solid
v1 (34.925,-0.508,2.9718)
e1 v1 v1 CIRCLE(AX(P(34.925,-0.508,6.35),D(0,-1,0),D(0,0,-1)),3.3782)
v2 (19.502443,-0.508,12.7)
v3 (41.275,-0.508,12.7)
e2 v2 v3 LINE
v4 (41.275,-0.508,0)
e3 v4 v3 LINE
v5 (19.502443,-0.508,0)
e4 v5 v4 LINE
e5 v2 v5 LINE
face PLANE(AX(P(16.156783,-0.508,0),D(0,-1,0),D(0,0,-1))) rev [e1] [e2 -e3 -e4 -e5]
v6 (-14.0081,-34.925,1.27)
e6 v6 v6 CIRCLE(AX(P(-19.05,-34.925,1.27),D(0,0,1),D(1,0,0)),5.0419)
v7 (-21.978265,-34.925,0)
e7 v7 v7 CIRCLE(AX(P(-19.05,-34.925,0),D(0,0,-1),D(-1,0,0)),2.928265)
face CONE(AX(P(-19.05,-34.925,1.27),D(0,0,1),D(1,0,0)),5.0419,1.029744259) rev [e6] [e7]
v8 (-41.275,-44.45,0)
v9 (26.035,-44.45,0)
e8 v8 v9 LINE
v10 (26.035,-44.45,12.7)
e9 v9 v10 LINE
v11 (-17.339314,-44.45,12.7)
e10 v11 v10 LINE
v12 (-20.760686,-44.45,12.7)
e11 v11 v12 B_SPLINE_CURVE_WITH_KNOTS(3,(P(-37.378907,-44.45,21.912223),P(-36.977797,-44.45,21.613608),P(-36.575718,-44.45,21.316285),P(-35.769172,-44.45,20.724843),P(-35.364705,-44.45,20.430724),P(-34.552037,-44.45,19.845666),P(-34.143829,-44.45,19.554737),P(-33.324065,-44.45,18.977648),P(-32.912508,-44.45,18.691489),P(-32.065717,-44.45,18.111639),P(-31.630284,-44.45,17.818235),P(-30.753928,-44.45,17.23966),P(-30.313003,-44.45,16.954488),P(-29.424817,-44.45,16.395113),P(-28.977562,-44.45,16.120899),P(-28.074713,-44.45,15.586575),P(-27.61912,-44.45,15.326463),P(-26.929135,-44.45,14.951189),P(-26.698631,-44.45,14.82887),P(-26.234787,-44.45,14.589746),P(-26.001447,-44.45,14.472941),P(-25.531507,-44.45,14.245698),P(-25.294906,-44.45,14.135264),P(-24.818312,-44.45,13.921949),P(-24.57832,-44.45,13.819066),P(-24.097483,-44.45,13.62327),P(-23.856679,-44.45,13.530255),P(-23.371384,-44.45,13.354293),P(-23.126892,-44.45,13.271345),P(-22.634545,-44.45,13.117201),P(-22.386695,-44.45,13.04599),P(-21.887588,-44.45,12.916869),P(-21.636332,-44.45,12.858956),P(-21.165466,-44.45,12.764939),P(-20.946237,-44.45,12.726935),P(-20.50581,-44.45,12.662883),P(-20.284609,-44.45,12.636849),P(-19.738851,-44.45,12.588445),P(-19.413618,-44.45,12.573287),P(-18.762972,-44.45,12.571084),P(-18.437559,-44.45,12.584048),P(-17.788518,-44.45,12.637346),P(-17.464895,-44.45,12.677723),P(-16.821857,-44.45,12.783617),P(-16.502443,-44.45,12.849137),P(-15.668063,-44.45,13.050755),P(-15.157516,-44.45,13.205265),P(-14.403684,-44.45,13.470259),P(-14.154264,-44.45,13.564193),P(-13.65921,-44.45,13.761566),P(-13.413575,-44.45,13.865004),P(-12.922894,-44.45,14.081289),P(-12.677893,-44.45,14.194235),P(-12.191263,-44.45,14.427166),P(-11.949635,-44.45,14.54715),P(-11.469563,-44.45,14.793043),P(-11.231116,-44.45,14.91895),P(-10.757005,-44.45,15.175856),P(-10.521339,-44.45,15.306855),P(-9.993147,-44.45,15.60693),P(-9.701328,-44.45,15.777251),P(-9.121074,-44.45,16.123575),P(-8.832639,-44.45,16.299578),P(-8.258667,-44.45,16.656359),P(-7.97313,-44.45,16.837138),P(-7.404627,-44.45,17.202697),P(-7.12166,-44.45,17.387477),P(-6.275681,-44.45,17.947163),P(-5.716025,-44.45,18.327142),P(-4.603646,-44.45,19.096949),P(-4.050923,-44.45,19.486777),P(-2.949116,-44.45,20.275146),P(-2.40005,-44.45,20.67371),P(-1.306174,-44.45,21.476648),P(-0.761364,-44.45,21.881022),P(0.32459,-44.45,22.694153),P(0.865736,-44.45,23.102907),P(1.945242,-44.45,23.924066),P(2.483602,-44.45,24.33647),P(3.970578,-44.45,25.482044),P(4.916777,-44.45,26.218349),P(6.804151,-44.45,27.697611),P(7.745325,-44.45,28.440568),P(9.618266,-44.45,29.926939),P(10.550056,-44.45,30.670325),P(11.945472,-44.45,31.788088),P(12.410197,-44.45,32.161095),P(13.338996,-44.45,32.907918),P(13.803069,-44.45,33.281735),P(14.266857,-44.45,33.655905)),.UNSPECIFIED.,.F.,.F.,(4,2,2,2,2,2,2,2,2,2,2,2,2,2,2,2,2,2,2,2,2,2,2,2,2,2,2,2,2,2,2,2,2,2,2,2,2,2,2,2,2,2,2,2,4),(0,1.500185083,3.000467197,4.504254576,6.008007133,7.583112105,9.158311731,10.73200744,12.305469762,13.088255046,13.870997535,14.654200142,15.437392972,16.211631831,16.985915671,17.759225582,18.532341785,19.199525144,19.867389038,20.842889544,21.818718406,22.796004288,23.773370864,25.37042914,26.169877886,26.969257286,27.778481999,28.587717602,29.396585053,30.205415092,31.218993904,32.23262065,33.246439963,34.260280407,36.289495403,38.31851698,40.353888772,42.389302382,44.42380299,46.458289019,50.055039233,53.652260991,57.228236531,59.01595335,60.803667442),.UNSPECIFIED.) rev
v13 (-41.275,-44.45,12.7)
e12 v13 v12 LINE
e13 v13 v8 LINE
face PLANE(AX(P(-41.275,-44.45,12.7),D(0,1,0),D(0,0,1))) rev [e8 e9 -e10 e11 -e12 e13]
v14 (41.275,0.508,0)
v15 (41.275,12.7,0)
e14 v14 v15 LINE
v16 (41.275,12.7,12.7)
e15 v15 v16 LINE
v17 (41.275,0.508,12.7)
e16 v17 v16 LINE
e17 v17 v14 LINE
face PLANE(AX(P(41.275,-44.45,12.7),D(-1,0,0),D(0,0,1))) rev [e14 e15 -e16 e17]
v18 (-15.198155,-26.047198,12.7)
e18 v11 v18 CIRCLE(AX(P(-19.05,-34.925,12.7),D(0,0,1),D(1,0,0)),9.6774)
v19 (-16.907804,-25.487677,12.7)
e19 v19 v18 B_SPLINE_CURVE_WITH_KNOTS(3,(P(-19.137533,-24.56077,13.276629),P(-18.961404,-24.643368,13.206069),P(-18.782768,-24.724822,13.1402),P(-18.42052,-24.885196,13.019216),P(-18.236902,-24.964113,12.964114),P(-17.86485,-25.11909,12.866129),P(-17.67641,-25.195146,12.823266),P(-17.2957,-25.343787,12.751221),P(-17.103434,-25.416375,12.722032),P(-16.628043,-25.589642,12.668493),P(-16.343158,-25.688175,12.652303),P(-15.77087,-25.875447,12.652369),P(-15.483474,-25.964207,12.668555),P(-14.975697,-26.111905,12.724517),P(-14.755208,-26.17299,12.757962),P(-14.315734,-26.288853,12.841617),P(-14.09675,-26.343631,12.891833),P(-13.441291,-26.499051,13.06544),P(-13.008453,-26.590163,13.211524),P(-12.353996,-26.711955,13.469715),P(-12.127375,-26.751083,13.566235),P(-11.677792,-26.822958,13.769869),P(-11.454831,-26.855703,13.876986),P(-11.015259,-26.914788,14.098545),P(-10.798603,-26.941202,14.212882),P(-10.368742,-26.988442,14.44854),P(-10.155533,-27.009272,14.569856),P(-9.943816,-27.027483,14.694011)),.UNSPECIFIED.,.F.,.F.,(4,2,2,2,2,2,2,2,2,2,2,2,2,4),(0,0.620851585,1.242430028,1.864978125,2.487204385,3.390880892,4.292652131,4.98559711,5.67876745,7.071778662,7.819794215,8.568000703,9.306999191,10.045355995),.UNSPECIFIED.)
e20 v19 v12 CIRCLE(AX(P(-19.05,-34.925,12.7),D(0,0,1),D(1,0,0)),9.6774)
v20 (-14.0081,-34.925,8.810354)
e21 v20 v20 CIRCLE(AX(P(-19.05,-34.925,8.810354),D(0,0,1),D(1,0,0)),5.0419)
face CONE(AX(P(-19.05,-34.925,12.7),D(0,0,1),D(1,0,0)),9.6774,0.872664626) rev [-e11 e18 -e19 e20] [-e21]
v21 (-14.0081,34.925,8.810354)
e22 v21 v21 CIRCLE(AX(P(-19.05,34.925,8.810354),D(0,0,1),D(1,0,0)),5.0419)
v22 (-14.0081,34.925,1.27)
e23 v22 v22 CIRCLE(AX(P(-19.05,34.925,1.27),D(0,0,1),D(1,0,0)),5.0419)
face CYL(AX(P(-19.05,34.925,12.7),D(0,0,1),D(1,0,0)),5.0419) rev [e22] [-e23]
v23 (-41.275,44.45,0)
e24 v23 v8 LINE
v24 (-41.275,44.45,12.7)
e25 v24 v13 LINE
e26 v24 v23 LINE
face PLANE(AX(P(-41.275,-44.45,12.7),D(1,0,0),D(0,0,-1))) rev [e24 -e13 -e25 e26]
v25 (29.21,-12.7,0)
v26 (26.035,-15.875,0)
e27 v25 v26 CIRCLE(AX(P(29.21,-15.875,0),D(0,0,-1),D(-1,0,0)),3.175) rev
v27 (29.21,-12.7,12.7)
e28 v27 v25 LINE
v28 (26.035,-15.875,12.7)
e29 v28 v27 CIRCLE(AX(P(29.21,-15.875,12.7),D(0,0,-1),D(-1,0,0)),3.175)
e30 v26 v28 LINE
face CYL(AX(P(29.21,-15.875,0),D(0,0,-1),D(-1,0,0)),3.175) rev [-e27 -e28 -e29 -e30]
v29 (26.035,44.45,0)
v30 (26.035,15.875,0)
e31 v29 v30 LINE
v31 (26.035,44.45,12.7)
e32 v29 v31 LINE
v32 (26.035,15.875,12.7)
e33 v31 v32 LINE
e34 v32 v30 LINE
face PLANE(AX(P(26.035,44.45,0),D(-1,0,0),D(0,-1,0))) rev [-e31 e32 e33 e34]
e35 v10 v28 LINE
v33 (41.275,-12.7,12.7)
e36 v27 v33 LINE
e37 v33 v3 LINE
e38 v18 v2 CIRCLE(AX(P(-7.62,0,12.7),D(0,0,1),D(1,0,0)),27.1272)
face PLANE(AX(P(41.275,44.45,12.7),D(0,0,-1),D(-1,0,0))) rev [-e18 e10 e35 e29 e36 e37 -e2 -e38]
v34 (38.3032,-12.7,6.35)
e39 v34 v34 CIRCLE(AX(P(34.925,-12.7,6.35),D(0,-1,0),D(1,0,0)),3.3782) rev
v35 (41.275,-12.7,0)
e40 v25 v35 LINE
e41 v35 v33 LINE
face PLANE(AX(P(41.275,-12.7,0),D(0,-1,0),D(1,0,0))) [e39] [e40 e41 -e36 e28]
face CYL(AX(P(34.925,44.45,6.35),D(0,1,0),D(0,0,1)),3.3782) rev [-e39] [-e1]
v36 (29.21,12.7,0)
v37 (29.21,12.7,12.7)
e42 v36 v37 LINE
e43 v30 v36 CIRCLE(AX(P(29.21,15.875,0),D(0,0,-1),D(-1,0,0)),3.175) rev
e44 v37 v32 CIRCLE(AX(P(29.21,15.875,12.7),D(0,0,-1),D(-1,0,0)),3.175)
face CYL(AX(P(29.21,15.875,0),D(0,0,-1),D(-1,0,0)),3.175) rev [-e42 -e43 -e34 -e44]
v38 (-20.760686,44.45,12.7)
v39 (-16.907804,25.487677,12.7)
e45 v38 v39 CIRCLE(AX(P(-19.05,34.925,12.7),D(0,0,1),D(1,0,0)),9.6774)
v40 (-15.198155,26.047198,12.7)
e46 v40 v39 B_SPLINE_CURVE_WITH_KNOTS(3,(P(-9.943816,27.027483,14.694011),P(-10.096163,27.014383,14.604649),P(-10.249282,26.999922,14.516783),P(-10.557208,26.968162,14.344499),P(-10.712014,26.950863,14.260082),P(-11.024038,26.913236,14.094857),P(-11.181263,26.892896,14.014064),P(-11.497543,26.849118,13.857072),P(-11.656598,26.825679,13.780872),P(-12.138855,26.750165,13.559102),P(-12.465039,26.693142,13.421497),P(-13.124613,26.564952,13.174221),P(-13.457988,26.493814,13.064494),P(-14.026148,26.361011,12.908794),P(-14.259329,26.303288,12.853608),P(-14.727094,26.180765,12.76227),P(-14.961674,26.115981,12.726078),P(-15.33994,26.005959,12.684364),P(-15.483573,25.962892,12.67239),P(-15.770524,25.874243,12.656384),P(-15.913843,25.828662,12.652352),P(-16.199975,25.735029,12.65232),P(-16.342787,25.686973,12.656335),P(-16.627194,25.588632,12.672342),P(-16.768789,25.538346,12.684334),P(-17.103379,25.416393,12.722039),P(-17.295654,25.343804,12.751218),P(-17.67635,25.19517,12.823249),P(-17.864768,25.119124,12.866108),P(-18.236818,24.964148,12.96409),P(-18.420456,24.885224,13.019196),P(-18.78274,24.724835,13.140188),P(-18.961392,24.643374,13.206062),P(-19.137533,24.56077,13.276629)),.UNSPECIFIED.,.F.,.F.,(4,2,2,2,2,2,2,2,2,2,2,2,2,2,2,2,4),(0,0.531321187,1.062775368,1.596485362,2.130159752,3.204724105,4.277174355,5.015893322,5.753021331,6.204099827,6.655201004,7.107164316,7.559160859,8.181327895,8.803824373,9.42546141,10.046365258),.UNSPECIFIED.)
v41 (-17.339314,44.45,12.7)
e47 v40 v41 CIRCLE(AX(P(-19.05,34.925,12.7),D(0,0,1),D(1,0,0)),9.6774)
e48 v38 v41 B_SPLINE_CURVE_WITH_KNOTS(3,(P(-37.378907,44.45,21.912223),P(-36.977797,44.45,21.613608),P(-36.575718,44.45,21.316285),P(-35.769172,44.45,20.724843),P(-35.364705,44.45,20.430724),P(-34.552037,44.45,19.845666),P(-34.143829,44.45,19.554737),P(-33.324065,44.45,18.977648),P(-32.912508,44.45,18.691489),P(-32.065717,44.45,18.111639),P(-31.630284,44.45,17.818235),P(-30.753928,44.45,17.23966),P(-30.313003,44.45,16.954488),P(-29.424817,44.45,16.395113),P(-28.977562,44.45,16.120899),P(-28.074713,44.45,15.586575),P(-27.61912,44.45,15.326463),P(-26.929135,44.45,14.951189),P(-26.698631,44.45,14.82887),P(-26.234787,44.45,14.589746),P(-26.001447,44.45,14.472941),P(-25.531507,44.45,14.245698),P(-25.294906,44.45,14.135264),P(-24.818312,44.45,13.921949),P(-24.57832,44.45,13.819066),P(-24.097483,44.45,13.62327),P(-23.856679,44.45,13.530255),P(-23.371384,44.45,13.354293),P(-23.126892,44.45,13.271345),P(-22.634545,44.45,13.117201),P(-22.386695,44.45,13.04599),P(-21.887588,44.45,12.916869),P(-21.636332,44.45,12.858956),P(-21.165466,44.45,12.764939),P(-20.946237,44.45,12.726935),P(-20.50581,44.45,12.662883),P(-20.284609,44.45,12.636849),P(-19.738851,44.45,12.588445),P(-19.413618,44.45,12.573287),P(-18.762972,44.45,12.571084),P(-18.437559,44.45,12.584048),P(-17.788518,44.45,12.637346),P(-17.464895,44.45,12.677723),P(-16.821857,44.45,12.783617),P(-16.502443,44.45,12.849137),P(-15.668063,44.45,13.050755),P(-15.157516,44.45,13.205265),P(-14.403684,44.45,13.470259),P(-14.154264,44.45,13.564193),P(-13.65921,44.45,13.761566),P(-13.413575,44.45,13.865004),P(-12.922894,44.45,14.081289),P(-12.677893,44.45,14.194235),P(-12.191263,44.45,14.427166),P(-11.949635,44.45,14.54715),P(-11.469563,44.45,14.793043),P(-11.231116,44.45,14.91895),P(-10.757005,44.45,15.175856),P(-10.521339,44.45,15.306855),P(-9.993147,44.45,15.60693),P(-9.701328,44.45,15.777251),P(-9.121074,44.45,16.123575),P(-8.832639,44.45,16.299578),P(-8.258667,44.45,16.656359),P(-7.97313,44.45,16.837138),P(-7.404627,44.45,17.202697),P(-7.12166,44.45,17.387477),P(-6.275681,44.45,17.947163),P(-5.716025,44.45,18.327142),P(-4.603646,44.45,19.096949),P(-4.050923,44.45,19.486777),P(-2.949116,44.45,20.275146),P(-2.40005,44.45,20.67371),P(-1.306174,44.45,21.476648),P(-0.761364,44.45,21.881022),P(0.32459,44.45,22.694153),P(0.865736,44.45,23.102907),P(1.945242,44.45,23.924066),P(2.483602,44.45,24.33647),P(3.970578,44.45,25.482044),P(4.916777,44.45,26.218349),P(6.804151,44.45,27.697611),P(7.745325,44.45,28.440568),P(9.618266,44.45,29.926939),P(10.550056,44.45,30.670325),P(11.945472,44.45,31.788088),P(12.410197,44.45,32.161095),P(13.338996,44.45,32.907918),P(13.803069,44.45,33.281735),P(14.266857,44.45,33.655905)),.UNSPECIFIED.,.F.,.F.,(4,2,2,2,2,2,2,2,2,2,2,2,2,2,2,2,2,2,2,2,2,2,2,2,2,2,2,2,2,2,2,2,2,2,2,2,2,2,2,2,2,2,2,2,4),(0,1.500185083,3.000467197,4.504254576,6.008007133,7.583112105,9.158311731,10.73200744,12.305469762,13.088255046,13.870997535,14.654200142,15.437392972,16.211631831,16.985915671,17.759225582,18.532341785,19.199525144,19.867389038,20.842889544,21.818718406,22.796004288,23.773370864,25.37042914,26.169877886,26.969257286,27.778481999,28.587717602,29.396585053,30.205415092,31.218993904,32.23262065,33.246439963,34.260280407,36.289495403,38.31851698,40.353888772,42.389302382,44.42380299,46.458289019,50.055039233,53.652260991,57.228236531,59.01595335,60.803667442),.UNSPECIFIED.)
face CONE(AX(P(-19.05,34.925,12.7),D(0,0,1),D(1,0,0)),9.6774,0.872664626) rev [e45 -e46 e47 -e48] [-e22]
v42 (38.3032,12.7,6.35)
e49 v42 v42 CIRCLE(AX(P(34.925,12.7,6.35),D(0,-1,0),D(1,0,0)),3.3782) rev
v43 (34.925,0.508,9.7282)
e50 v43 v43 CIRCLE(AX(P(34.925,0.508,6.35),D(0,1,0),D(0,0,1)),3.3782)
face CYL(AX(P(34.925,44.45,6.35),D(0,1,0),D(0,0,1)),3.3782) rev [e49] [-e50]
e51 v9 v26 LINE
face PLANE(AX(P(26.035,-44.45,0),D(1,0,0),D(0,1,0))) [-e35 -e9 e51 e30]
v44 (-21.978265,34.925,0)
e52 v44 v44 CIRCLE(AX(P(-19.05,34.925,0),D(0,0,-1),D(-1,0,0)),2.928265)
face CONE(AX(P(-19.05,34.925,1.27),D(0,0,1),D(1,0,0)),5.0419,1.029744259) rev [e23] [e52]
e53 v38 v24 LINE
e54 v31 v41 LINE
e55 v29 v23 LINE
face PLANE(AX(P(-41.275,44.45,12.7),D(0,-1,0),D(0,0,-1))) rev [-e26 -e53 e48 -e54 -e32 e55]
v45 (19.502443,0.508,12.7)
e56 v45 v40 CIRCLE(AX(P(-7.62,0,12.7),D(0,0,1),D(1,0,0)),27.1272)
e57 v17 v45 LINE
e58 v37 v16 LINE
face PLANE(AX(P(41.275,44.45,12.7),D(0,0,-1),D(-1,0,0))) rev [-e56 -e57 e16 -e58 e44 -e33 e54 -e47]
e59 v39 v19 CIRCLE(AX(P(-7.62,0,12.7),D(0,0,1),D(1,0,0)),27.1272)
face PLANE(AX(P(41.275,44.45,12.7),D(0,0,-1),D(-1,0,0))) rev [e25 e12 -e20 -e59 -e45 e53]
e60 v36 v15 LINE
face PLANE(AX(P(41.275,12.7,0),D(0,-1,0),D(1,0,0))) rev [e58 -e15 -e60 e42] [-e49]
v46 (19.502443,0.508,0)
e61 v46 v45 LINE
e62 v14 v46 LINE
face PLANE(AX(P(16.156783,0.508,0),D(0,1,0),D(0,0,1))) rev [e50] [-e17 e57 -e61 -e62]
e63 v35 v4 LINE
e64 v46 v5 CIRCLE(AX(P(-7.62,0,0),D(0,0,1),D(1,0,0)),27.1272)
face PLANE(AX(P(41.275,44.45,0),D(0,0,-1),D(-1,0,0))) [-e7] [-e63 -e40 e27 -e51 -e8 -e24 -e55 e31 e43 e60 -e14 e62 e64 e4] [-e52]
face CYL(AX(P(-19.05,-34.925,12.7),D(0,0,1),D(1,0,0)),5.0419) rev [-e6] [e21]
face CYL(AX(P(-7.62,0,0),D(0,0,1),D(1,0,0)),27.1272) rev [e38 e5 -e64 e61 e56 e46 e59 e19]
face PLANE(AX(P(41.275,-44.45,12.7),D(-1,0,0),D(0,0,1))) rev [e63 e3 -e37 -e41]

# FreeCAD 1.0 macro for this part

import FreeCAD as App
import Part
import Sketcher

V = App.Vector
Q = App.Units.Quantity


def edges_at(feature, points):
    """Names of the edges that pass closest to the given points."""
    edges = feature.Shape.Edges
    near = lambda p: min(range(len(edges)), key=lambda i: edges[i].distToShape(Part.Vertex(*p))[0])
    return sorted({f"Edge{near(p) + 1}" for p in points})


def add_polygon(sketch, points):
    """Adds a closed chain of lines whose ends are joined by coincident constraints."""
    first, n = sketch.GeometryCount, len(points)
    for a, b in zip(points, points[1:] + points[:1]):
        sketch.addGeometry(Part.LineSegment(App.Vector(*a, 0), App.Vector(*b, 0)), False)
    for i in range(n):
        sketch.addConstraint(Sketcher.Constraint("Coincident", first + i, 2, first + (i + 1) % n, 1))

doc = App.newDocument("Part")
body = doc.addObject("PartDesign::Body", "Body")

# Sketch on XY plane
sketch1 = body.newObject("Sketcher::SketchObject", "Sketch")
sketch1.AttachmentSupport = (doc.getObject("XY_Plane"), [""])
sketch1.MapMode = "FlatFace"
add_polygon(sketch1, [(-41, 44), (-41, -44), (41, -44), (41, 44)])  # lines 0-3
sketch1.addConstraint([
    Sketcher.Constraint("Vertical", 0),
    Sketcher.Constraint("Horizontal", 1),
    Sketcher.Constraint("Vertical", 2),
    Sketcher.Constraint("Horizontal", 3),
    Sketcher.Constraint("Symmetric", 0, 2, 2, 2, -1, 1),
    Sketcher.Constraint("DistanceY", 0, 2, 0, 1, Q("3.5 in")),
    Sketcher.Constraint("DistanceX", 1, 1, 1, 2, Q("3.25 in")),
])
pad1 = body.newObject("PartDesign::Pad", "Pad")
pad1.Profile = sketch1
pad1.Length = Q("0.5 in")

# Sketch on XY plane
sketch2 = body.newObject("Sketcher::SketchObject", "Sketch001")
sketch2.AttachmentSupport = (doc.getObject("XY_Plane"), [""])
sketch2.MapMode = "FlatFace"
sketch2.AttachmentOffset = App.Placement(V(0, 0, 0.5 * 25.4), App.Rotation())
sketch2.addGeometry(Part.Circle(V(-8, 0, 0), V(0, 0, 1), 27), False)
sketch2.addConstraint([
    Sketcher.Constraint("PointOnObject", 0, 3, -1),
    Sketcher.Constraint("Diameter", 0, Q("2.136 in")),
    Sketcher.Constraint("DistanceX", 0, 3, -1, 1, Q("0.3 in")),
])
pocket1 = body.newObject("PartDesign::Pocket", "Pocket")
pocket1.Profile = sketch2
pocket1.Type = "ThroughAll"

# Sketch on XY plane
sketch3 = body.newObject("Sketcher::SketchObject", "Sketch002")
sketch3.AttachmentSupport = (doc.getObject("XY_Plane"), [""])
sketch3.MapMode = "FlatFace"
sketch3.AttachmentOffset = App.Placement(V(0, 0, 0.5 * 25.4), App.Rotation())
add_polygon(sketch3, [(16.2, 0.5), (16.2, -0.5), (44.6, -0.5), (44.6, 0.5)])  # lines 0-3
sketch3.addConstraint([
    Sketcher.Constraint("Vertical", 0),
    Sketcher.Constraint("Horizontal", 1),
    Sketcher.Constraint("Vertical", 2),
    Sketcher.Constraint("Horizontal", 3),
    Sketcher.Constraint("DistanceY", 0, 2, 0, 1, Q("0.04 in")),
    Sketcher.Constraint("DistanceY", 0, 2, -1, 1, Q("0.02 in")),
    Sketcher.Constraint("DistanceX", 1, 1, 1, 2, Q("28.468633 mm")),
    Sketcher.Constraint("DistanceX", -1, 1, 0, 2, Q("16.156783 mm")),
])
pocket2 = body.newObject("PartDesign::Pocket", "Pocket001")
pocket2.Profile = sketch3
pocket2.Type = "ThroughAll"

# Sketch on XZ plane
sketch4 = body.newObject("Sketcher::SketchObject", "Sketch003")
sketch4.AttachmentSupport = (doc.getObject("XZ_Plane"), [""])
sketch4.MapMode = "FlatFace"
sketch4.AttachmentOffset = App.Placement(V(0, 0, -1.75 * 25.4), App.Rotation())
sketch4.addGeometry(Part.Circle(V(34.9, 6.3, 0), V(0, 0, 1), 3.4), False)
sketch4.addConstraint([
    Sketcher.Constraint("Diameter", 0, Q("0.266 in")),
    Sketcher.Constraint("DistanceY", -1, 1, 0, 3, Q("0.25 in")),
    Sketcher.Constraint("DistanceX", -1, 1, 0, 3, Q("1.375 in")),
])
doc.recompute()
hole = body.newObject("PartDesign::Hole", "Hole")
hole.Profile = sketch4
hole.ThreadType = "None"
hole.Diameter = Q("0.266 in")
hole.DepthType = "ThroughAll"
hole.Reversed = True

# Sketch on YZ plane
sketch5 = body.newObject("Sketcher::SketchObject", "Sketch004")
sketch5.AttachmentSupport = (doc.getObject("YZ_Plane"), [""])
sketch5.MapMode = "FlatFace"
sketch5.AttachmentOffset = App.Placement(V(0, 0, -0.75 * 25.4), App.Rotation())
add_polygon(sketch5, [(35, -2), (35, 13), (25, 13), (30, 9), (30, 1)])  # lines 0-4
sketch5.addGeometry(Part.LineSegment(V(35, 13, 0), V(35, -2, 0)), True)  # axis
sketch5.addConstraint([
    Sketcher.Constraint("Vertical", 0),
    Sketcher.Constraint("Horizontal", 1),
    Sketcher.Constraint("Vertical", 3),
    Sketcher.Constraint("Vertical", 5),
    Sketcher.Constraint("Coincident", 5, 1, 0, 2),
    Sketcher.Constraint("Equal", 0, 5),
    Sketcher.Constraint("Angle", 2, Q("-40 deg")),
    Sketcher.Constraint("Angle", 4, Q("-31 deg")),
    Sketcher.Constraint("DistanceY", -1, 1, 0, 2, Q("0.5 in")),
    Sketcher.Constraint("DistanceX", 1, 2, 1, 1, Q("0.381 in")),
    Sketcher.Constraint("DistanceY", -1, 1, 3, 2, Q("0.05 in")),
    Sketcher.Constraint("DistanceX", -1, 1, 0, 2, Q("1.375 in")),
    Sketcher.Constraint("DistanceX", -1, 1, 2, 2, Q("1.1765 in")),
])
groove = body.newObject("PartDesign::Groove", "Groove")
groove.Profile = sketch5
groove.ReferenceAxis = (sketch5, ["Axis0"])
groove.Angle = 360
doc.recompute()

mirrored = body.newObject("PartDesign::Mirrored", "Mirrored")
mirrored.Originals = [groove]
mirrored.MirrorPlane = (doc.getObject("XZ_Plane"), [""])
body.Tip = mirrored

# Sketch on XY plane
sketch6 = body.newObject("Sketcher::SketchObject", "Sketch005")
sketch6.AttachmentSupport = (doc.getObject("XY_Plane"), [""])
sketch6.MapMode = "FlatFace"
sketch6.AttachmentOffset = App.Placement(V(0, 0, 0.5 * 25.4), App.Rotation())
add_polygon(sketch6, [(26, 44), (26, 13), (41, 13), (41, 44)])  # lines 0-3
sketch6.addConstraint([
    Sketcher.Constraint("Vertical", 0),
    Sketcher.Constraint("Horizontal", 1),
    Sketcher.Constraint("Vertical", 2),
    Sketcher.Constraint("Horizontal", 3),
    Sketcher.Constraint("DistanceX", 1, 1, 1, 2, Q("0.6 in")),
    Sketcher.Constraint("DistanceY", 0, 2, 0, 1, Q("1.25 in")),
    Sketcher.Constraint("DistanceY", -1, 1, 0, 2, Q("0.5 in")),
    Sketcher.Constraint("DistanceX", -1, 1, 0, 2, Q("1.025 in")),
])
pocket3 = body.newObject("PartDesign::Pocket", "Pocket002")
pocket3.Profile = sketch6
pocket3.Type = "ThroughAll"
doc.recompute()

mirrored2 = body.newObject("PartDesign::Mirrored", "Mirrored001")
mirrored2.Originals = [pocket3]
mirrored2.MirrorPlane = (doc.getObject("XZ_Plane"), [""])
body.Tip = mirrored2
doc.recompute()

fillet = body.newObject("PartDesign::Fillet", "Fillet")
fillet.Base = (mirrored2, edges_at(mirrored2, [(26.035, -12.7, 6.35), (26.035, 12.7, 6.35)]))
fillet.Radius = Q("0.125 in")

doc.recompute()
